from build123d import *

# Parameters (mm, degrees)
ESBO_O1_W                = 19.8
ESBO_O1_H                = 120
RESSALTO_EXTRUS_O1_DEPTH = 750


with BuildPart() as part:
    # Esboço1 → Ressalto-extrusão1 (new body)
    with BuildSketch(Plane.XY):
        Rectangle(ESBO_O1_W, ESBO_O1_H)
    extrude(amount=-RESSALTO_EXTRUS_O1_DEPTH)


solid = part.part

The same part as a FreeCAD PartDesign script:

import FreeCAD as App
import Part
import Sketcher

doc = App.newDocument("Part")
params = doc.addObject("Spreadsheet::Sheet", "Params")
for row, (alias, value) in enumerate([
    ("sketch1_height", "120 mm"),
    ("sketch1_width", "19.8 mm"),
    ("pad1_length", "750 mm"),
], start=1):
    params.set(f"A{row}", alias)
    params.set(f"B{row}", "=" + value)
    params.setAlias(f"B{row}", alias)

body = doc.addObject("PartDesign::Body", "Body")

# Sketch on XY plane
sketch1 = body.newObject("Sketcher::SketchObject", "Sketch")
sketch1.AttachmentSupport = (doc.getObject("XY_Plane"), [""])
sketch1.MapMode = "FlatFace"
sketch1.addGeometry([
    Part.LineSegment(App.Vector(-10, 60, 0), App.Vector(-10, -60, 0)),
    Part.LineSegment(App.Vector(-10, -60, 0), App.Vector(10, -60, 0)),
    Part.LineSegment(App.Vector(10, -60, 0), App.Vector(10, 60, 0)),
    Part.LineSegment(App.Vector(10, 60, 0), App.Vector(-10, 60, 0)),
], False)
sketch1.addConstraint([
    Sketcher.Constraint("Coincident", 0, 2, 1, 1),
    Sketcher.Constraint("Coincident", 1, 2, 2, 1),
    Sketcher.Constraint("Coincident", 2, 2, 3, 1),
    Sketcher.Constraint("Coincident", 3, 2, 0, 1),
    Sketcher.Constraint("Vertical", 0),
    Sketcher.Constraint("Horizontal", 1),
    Sketcher.Constraint("Vertical", 2),
    Sketcher.Constraint("Horizontal", 3),
    Sketcher.Constraint("Symmetric", 0, 2, 2, 2, -1, 1),
    Sketcher.Constraint("DistanceY", 0, 2, 0, 1, 120.0),
    Sketcher.Constraint("DistanceX", 1, 1, 1, 2, 19.8),
])
sketch1.setExpression("Constraints[9]", "Params.sketch1_height")
sketch1.setExpression("Constraints[10]", "Params.sketch1_width")
pad1 = body.newObject("PartDesign::Pad", "Pad")
pad1.Profile = sketch1
pad1.setExpression("Length", "Params.pad1_length")
pad1.Reversed = True

doc.recompute()
